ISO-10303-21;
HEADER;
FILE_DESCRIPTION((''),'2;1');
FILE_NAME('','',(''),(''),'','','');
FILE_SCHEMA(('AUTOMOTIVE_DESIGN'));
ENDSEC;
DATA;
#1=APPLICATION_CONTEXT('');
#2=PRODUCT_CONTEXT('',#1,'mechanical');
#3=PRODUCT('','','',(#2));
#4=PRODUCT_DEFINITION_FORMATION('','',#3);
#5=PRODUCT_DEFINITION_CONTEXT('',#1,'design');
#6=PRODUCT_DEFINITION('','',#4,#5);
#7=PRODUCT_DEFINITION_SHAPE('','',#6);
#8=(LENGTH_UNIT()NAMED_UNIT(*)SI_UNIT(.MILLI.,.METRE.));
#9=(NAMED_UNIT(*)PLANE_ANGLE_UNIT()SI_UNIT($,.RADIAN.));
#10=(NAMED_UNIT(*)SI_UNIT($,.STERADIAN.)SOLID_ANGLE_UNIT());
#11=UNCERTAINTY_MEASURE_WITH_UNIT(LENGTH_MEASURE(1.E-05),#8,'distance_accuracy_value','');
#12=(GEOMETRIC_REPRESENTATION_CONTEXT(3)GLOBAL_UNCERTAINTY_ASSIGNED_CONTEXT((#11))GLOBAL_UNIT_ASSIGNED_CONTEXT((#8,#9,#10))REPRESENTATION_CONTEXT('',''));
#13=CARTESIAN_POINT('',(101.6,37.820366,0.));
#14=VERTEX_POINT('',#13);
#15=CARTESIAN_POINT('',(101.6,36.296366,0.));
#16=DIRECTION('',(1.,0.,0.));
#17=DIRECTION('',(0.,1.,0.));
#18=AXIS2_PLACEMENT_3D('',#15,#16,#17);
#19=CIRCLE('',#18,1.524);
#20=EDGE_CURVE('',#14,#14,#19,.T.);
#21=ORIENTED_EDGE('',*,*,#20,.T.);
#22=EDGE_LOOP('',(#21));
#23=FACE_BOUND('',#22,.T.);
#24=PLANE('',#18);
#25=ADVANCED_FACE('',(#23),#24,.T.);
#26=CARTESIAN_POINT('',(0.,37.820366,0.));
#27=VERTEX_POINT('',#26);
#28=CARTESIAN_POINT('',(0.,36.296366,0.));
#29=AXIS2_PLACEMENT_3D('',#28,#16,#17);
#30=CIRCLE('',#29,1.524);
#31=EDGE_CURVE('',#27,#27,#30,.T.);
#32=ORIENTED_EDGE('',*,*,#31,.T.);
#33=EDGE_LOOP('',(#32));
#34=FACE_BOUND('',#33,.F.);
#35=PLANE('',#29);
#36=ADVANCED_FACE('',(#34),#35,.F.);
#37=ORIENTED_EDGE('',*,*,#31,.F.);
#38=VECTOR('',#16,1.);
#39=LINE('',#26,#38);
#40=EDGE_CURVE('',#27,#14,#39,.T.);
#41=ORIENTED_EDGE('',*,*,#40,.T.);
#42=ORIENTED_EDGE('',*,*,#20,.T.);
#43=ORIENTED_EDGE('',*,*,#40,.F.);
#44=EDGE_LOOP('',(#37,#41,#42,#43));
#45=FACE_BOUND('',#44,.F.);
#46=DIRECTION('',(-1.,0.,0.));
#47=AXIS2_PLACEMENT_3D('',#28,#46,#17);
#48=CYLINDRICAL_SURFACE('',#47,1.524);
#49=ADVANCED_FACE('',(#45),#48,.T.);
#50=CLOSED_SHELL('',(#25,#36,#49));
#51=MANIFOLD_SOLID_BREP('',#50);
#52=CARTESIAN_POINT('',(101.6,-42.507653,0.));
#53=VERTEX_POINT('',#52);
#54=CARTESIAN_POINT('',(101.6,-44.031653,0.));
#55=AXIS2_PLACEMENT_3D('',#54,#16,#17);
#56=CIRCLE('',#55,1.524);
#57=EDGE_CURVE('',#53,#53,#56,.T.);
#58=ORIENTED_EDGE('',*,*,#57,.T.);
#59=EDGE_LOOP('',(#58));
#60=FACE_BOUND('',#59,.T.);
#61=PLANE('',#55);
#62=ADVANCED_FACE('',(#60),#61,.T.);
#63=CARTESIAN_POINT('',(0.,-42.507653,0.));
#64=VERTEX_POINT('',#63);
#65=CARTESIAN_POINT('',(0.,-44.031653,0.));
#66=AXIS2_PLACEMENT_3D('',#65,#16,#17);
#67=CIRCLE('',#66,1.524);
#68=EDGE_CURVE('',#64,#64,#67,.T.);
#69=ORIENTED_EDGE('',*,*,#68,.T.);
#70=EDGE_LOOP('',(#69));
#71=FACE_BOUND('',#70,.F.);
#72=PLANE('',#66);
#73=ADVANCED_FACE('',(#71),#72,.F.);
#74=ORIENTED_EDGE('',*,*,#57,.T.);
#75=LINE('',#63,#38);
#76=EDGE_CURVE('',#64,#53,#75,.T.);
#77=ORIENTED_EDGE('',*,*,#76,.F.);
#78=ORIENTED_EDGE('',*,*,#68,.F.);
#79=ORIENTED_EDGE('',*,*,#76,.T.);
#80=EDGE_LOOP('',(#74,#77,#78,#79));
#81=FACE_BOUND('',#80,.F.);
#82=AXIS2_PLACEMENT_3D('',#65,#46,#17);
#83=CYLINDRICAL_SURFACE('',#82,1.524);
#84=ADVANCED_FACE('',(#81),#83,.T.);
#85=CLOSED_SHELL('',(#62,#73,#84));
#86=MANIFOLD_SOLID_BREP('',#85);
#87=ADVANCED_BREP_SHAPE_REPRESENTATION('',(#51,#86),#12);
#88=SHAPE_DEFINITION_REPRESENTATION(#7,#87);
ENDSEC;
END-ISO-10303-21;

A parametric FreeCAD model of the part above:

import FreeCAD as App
import Part
import Sketcher
Q = App.Units.Quantity

doc = App.newDocument("Part")
body = doc.addObject("PartDesign::Body", "Body")
body.AllowCompound = True

sketch1 = body.newObject("Sketcher::SketchObject", "Sketch")
sketch1.AttachmentSupport = (doc.getObject("YZ_Plane"), [""])
sketch1.MapMode = "FlatFace"
sketch1.addGeometry([
    Part.Circle(App.Vector(-44.031653, 0, 0), App.Vector(0, 0, 1), 1.524),
    Part.Circle(App.Vector(36.296366, 0, 0), App.Vector(0, 0, 1), 1.524),
], False)
sketch1.addConstraint([
    Sketcher.Constraint("Equal", 0, 1),
    Sketcher.Constraint("PointOnObject", 0, 3, -1),
    Sketcher.Constraint("PointOnObject", 1, 3, -1),
    Sketcher.Constraint("Diameter", 0, Q("0.12 in")),
    Sketcher.Constraint("DistanceX", 0, 3, 1, 3, Q("80.328019 mm")),
    Sketcher.Constraint("DistanceX", 0, 3, -1, 1, Q("44.031653 mm")),
])
pad1 = body.newObject("PartDesign::Pad", "Pad")
pad1.Profile = sketch1
pad1.Length = Q("4 in")

doc.recompute()
